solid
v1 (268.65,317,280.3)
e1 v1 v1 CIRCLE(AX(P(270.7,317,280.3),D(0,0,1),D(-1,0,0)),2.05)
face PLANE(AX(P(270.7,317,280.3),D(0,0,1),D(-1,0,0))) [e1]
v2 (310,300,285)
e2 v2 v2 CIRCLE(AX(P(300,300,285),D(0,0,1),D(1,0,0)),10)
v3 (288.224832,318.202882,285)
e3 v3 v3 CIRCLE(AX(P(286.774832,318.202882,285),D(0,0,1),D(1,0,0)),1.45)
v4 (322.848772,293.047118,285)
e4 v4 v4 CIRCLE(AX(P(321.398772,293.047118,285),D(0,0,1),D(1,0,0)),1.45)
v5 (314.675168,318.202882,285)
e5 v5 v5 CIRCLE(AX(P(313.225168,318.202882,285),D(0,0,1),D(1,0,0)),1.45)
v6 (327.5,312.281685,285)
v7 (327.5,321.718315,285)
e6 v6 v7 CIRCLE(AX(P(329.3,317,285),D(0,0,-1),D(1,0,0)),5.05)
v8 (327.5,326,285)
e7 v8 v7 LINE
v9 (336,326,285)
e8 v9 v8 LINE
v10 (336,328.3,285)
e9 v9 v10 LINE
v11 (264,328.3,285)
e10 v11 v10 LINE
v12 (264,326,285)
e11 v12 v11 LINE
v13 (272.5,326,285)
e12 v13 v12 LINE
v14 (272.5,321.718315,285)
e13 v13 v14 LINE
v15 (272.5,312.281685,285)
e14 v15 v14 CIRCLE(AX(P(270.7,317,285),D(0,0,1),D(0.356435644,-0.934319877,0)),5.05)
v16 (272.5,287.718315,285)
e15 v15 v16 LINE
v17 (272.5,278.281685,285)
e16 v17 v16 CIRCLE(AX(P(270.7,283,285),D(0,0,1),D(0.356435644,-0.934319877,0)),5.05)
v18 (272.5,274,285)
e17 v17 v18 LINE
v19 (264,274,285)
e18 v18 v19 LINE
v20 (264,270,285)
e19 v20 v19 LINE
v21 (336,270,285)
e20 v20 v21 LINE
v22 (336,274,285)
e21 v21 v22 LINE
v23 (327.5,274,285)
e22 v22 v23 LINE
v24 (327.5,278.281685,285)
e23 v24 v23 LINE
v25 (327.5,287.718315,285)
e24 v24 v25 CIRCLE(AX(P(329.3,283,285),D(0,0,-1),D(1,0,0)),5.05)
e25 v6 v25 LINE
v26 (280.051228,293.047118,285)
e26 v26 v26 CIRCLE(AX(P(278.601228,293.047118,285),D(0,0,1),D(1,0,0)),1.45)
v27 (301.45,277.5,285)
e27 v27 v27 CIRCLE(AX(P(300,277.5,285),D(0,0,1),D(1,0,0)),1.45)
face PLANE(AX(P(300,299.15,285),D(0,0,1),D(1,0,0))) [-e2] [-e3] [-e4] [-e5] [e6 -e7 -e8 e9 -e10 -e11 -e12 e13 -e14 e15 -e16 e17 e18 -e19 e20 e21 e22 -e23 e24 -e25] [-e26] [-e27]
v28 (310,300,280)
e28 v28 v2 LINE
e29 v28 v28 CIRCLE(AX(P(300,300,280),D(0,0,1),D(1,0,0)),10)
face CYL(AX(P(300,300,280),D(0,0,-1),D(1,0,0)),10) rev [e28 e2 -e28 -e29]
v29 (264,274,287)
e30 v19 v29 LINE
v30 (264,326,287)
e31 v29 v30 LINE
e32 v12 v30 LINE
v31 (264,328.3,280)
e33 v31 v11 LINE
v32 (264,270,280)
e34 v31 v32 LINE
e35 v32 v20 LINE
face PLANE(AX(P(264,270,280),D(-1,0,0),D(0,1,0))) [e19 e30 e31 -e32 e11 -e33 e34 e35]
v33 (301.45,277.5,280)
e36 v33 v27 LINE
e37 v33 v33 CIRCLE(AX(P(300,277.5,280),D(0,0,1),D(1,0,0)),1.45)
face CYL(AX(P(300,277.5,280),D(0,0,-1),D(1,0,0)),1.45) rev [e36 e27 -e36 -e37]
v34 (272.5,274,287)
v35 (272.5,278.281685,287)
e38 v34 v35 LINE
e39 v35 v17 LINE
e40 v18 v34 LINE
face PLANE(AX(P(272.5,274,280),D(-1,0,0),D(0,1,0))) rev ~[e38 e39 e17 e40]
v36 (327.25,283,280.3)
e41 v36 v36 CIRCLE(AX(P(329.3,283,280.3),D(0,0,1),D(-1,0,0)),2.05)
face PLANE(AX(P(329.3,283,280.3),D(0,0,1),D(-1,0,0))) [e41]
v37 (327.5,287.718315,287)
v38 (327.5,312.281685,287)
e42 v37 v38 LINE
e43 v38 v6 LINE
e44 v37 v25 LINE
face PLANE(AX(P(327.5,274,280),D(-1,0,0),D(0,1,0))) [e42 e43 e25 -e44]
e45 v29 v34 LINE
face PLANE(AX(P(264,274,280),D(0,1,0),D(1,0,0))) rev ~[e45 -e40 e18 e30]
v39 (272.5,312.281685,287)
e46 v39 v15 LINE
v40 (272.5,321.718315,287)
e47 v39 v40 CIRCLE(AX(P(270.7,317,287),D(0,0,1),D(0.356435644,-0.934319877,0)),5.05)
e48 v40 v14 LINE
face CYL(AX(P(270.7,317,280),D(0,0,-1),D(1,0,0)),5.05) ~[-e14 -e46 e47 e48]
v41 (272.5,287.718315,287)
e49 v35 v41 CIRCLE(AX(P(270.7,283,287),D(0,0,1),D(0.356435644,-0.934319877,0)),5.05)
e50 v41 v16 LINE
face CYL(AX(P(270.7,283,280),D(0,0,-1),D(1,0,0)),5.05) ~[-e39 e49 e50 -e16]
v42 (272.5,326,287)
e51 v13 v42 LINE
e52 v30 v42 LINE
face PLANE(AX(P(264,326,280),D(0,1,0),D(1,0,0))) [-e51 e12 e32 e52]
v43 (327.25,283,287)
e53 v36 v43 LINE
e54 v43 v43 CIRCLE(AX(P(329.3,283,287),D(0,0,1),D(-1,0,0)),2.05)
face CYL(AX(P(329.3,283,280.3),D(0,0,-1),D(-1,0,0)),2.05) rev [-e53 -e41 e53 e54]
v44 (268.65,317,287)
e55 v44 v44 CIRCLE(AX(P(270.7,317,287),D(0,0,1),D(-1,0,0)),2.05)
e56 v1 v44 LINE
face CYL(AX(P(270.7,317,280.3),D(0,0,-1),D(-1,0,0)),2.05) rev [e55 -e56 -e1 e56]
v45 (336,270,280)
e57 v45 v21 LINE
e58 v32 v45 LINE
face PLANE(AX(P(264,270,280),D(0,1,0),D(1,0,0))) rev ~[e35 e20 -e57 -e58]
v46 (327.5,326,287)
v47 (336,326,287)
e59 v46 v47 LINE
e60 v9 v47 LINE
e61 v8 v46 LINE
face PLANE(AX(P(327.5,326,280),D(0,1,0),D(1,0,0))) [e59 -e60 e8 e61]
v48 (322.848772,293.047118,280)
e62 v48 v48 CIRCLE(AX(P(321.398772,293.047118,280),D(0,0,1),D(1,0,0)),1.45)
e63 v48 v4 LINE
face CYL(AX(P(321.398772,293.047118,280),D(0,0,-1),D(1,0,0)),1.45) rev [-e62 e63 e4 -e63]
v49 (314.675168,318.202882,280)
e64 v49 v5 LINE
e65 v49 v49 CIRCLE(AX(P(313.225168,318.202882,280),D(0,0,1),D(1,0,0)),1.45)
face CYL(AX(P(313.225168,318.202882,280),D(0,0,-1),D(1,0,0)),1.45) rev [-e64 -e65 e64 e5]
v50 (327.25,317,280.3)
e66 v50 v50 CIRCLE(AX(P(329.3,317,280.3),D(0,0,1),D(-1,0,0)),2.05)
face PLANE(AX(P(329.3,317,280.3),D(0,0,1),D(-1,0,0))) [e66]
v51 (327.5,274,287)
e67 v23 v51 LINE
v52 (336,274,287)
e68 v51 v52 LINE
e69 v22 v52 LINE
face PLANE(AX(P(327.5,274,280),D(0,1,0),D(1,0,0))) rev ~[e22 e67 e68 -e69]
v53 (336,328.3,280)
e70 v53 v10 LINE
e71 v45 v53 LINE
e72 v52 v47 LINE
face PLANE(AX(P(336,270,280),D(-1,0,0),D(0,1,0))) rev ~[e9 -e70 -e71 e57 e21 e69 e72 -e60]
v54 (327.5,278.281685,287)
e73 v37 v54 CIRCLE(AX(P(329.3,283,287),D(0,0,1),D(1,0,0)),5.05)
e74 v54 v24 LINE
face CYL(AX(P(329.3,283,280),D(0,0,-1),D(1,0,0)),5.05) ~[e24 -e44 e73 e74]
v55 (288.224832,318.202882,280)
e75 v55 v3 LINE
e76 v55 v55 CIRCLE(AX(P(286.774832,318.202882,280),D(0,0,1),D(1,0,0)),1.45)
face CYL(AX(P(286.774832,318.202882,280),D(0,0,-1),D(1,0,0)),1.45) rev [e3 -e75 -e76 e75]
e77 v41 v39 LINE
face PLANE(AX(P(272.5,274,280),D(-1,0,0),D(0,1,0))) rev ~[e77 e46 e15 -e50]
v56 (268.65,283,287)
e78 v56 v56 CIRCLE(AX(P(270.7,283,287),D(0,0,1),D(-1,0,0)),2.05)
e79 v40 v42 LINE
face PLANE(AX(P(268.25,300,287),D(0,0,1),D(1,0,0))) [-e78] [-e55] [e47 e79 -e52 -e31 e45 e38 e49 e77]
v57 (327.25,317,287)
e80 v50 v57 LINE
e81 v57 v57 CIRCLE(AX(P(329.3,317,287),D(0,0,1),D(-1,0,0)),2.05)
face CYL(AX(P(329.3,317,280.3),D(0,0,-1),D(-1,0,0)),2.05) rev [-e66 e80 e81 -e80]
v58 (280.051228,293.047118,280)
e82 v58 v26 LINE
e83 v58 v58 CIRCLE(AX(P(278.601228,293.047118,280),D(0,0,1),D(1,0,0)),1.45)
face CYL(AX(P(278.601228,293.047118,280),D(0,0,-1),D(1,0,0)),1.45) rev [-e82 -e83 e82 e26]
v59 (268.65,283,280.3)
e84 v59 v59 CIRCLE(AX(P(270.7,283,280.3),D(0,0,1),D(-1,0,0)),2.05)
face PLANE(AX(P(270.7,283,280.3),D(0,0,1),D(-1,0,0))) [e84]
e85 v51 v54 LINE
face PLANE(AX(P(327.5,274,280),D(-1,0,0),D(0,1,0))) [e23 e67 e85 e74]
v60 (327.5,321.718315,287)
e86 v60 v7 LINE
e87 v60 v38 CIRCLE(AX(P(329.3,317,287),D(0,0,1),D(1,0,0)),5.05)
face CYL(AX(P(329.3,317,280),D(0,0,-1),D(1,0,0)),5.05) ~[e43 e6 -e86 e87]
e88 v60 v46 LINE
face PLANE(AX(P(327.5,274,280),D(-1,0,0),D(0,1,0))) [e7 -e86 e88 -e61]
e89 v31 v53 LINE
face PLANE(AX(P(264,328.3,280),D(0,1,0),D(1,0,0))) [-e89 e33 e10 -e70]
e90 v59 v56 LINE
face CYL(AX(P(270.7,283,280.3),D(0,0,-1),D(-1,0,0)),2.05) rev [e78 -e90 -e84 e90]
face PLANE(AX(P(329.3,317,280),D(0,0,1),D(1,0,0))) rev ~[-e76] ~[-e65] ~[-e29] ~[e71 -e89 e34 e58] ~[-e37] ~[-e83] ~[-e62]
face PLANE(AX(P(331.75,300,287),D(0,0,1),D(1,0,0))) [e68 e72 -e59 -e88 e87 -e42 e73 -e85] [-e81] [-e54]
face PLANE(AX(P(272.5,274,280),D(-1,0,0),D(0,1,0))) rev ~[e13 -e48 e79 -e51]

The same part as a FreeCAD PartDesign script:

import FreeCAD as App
import Part
import Sketcher
from FreeCAD import Vector


def add_polygon(sketch, points):
    """Adds a closed chain of lines whose ends are joined by coincident constraints."""
    first, n = sketch.GeometryCount, len(points)
    for a, b in zip(points, points[1:] + points[:1]):
        sketch.addGeometry(Part.LineSegment(App.Vector(*a, 0), App.Vector(*b, 0)), False)
    for i in range(n):
        sketch.addConstraint(Sketcher.Constraint("Coincident", first + i, 2, first + (i + 1) % n, 1))

doc = App.newDocument("Part")
body = doc.addObject("PartDesign::Body", "Body")

sketch1 = body.newObject("Sketcher::SketchObject", "Sketch")
sketch1.AttachmentSupport = (doc.getObject("XY_Plane"), [""])
sketch1.MapMode = "FlatFace"
sketch1.AttachmentOffset = App.Placement(Vector(0, 0, 280), App.Rotation())
add_polygon(sketch1, [(264, 328.3), (264, 270), (336, 270), (336, 328.3)])
sketch1.addGeometry(Part.Circle(Vector(300, 277.5, 0), Vector(0, 0, 1), 1.45), False)
sketch1.addGeometry(Part.Circle(Vector(278.601228, 293.047118, 0), Vector(0, 0, 1), 1.45), False)
sketch1.addGeometry(Part.Circle(Vector(321.398772, 293.047118, 0), Vector(0, 0, 1), 1.45), False)
sketch1.addGeometry(Part.Circle(Vector(300, 300, 0), Vector(0, 0, 1), 10), False)
sketch1.addGeometry(Part.Circle(Vector(286.774832, 318.202882, 0), Vector(0, 0, 1), 1.45), False)
sketch1.addGeometry(Part.Circle(Vector(313.225168, 318.202882, 0), Vector(0, 0, 1), 1.45), False)
sketch1.addConstraint(Sketcher.Constraint("Vertical", 0))
sketch1.addConstraint(Sketcher.Constraint("Horizontal", 1))
sketch1.addConstraint(Sketcher.Constraint("Vertical", 2))
sketch1.addConstraint(Sketcher.Constraint("Horizontal", 3))
sketch1.addConstraint(Sketcher.Constraint("Equal", 4, 5))
sketch1.addConstraint(Sketcher.Constraint("Equal", 5, 6))
sketch1.addConstraint(Sketcher.Constraint("Equal", 6, 8))
sketch1.addConstraint(Sketcher.Constraint("Equal", 8, 9))
sketch1.addConstraint(Sketcher.Constraint("Horizontal", 5, 3, 6, 3))
sketch1.addConstraint(Sketcher.Constraint("Horizontal", 8, 3, 9, 3))
sketch1.addConstraint(Sketcher.Constraint("Vertical", 4, 3, 7, 3))
sketch1.addConstraint(Sketcher.Constraint("Diameter", 7, 20.0))
sketch1.addConstraint(Sketcher.Constraint("Diameter", 4, 2.9))
sketch1.addConstraint(Sketcher.Constraint("DistanceX", 1, 1, 1, 2, 72.0))
sketch1.addConstraint(Sketcher.Constraint("DistanceY", 0, 2, 0, 1, 58.3))
sketch1.addConstraint(Sketcher.Constraint("DistanceX", -1, 1, 4, 3, 300.0))
sketch1.addConstraint(Sketcher.Constraint("DistanceY", -1, 1, 7, 3, 300.0))
sketch1.addConstraint(Sketcher.Constraint("DistanceX", -1, 1, 0, 2, 264.0))
sketch1.addConstraint(Sketcher.Constraint("DistanceY", -1, 1, 0, 2, 270.0))
sketch1.addConstraint(Sketcher.Constraint("DistanceY", -1, 1, 4, 3, 277.5))
sketch1.addConstraint(Sketcher.Constraint("DistanceX", -1, 1, 5, 3, 278.601228))
sketch1.addConstraint(Sketcher.Constraint("DistanceX", -1, 1, 6, 3, 321.398772))
sketch1.addConstraint(Sketcher.Constraint("DistanceX", -1, 1, 8, 3, 286.774832))
sketch1.addConstraint(Sketcher.Constraint("DistanceX", -1, 1, 9, 3, 313.225168))
sketch1.addConstraint(Sketcher.Constraint("DistanceY", -1, 1, 5, 3, 293.047118))
sketch1.addConstraint(Sketcher.Constraint("DistanceY", -1, 1, 8, 3, 318.202882))
pad1 = body.newObject("PartDesign::Pad", "Pad")
pad1.Profile = sketch1
pad1.Length = 5

sketch2 = body.newObject("Sketcher::SketchObject", "Sketch001")
sketch2.AttachmentSupport = (doc.getObject("XY_Plane"), [""])
sketch2.MapMode = "FlatFace"
sketch2.AttachmentOffset = App.Placement(Vector(0, 0, 280), App.Rotation())
add_polygon(sketch2, [(264, 326), (264, 274), (272.5, 274), (272.5, 326)])
sketch2.addConstraint(Sketcher.Constraint("Vertical", 0))
sketch2.addConstraint(Sketcher.Constraint("Horizontal", 1))
sketch2.addConstraint(Sketcher.Constraint("Vertical", 2))
sketch2.addConstraint(Sketcher.Constraint("Horizontal", 3))
sketch2.addConstraint(Sketcher.Constraint("DistanceY", 0, 2, 0, 1, 52.0))
sketch2.addConstraint(Sketcher.Constraint("DistanceX", 1, 1, 1, 2, 8.5))
sketch2.addConstraint(Sketcher.Constraint("DistanceX", -1, 1, 0, 2, 264.0))
sketch2.addConstraint(Sketcher.Constraint("DistanceY", -1, 1, 0, 2, 274.0))
pad2 = body.newObject("PartDesign::Pad", "Pad001")
pad2.Profile = sketch2
pad2.Length = 7

sketch3 = body.newObject("Sketcher::SketchObject", "Sketch002")
sketch3.AttachmentSupport = (doc.getObject("XY_Plane"), [""])
sketch3.MapMode = "FlatFace"
sketch3.AttachmentOffset = App.Placement(Vector(0, 0, 280), App.Rotation())
sketch3.addGeometry(Part.Circle(Vector(270.7, 283, 0), Vector(0, 0, 1), 5.05), False)
sketch3.addConstraint(Sketcher.Constraint("Diameter", 0, 10.1))
sketch3.addConstraint(Sketcher.Constraint("DistanceY", -1, 1, 0, 3, 283.0))
sketch3.addConstraint(Sketcher.Constraint("DistanceX", -1, 1, 0, 3, 270.7))
pad3 = body.newObject("PartDesign::Pad", "Pad002")
pad3.Profile = sketch3
pad3.Length = 7

sketch4 = body.newObject("Sketcher::SketchObject", "Sketch003")
sketch4.AttachmentSupport = (doc.getObject("XY_Plane"), [""])
sketch4.MapMode = "FlatFace"
sketch4.AttachmentOffset = App.Placement(Vector(0, 0, 280), App.Rotation())
sketch4.addGeometry(Part.Circle(Vector(270.7, 317, 0), Vector(0, 0, 1), 5.05), False)
sketch4.addConstraint(Sketcher.Constraint("Diameter", 0, 10.1))
sketch4.addConstraint(Sketcher.Constraint("DistanceY", -1, 1, 0, 3, 317.0))
sketch4.addConstraint(Sketcher.Constraint("DistanceX", -1, 1, 0, 3, 270.7))
pad4 = body.newObject("PartDesign::Pad", "Pad003")
pad4.Profile = sketch4
pad4.Length = 7

sketch5 = body.newObject("Sketcher::SketchObject", "Sketch004")
sketch5.AttachmentSupport = (doc.getObject("XY_Plane"), [""])
sketch5.MapMode = "FlatFace"
sketch5.AttachmentOffset = App.Placement(Vector(0, 0, 280.3), App.Rotation())
sketch5.addGeometry(Part.Circle(Vector(270.7, 283, 0), Vector(0, 0, 1), 2.05), False)
sketch5.addGeometry(Part.Circle(Vector(270.7, 317, 0), Vector(0, 0, 1), 2.05), False)
sketch5.addConstraint(Sketcher.Constraint("Equal", 0, 1))
sketch5.addConstraint(Sketcher.Constraint("Vertical", 0, 3, 1, 3))
sketch5.addConstraint(Sketcher.Constraint("Diameter", 0, 4.1))
sketch5.addConstraint(Sketcher.Constraint("DistanceY", -1, 1, 0, 3, 283.0))
sketch5.addConstraint(Sketcher.Constraint("DistanceY", -1, 1, 1, 3, 317.0))
sketch5.addConstraint(Sketcher.Constraint("DistanceX", -1, 1, 0, 3, 270.7))
pocket1 = body.newObject("PartDesign::Pocket", "Pocket")
pocket1.Profile = sketch5
pocket1.Length = 6.7
pocket1.Reversed = True

sketch6 = body.newObject("Sketcher::SketchObject", "Sketch005")
sketch6.AttachmentSupport = (doc.getObject("XY_Plane"), [""])
sketch6.MapMode = "FlatFace"
sketch6.AttachmentOffset = App.Placement(Vector(0, 0, 280), App.Rotation())
add_polygon(sketch6, [(327.5, 326), (327.5, 274), (336, 274), (336, 326)])
sketch6.addConstraint(Sketcher.Constraint("Vertical", 0))
sketch6.addConstraint(Sketcher.Constraint("Horizontal", 1))
sketch6.addConstraint(Sketcher.Constraint("Vertical", 2))
sketch6.addConstraint(Sketcher.Constraint("Horizontal", 3))
sketch6.addConstraint(Sketcher.Constraint("DistanceY", 0, 2, 0, 1, 52.0))
sketch6.addConstraint(Sketcher.Constraint("DistanceX", 1, 1, 1, 2, 8.5))
sketch6.addConstraint(Sketcher.Constraint("DistanceY", -1, 1, 0, 2, 274.0))
sketch6.addConstraint(Sketcher.Constraint("DistanceX", -1, 1, 1, 2, 336.0))
pad5 = body.newObject("PartDesign::Pad", "Pad004")
pad5.Profile = sketch6
pad5.Length = 7

sketch7 = body.newObject("Sketcher::SketchObject", "Sketch006")
sketch7.AttachmentSupport = (doc.getObject("XY_Plane"), [""])
sketch7.MapMode = "FlatFace"
sketch7.AttachmentOffset = App.Placement(Vector(0, 0, 280), App.Rotation())
sketch7.addGeometry(Part.Circle(Vector(329.3, 283, 0), Vector(0, 0, 1), 5.05), False)
sketch7.addConstraint(Sketcher.Constraint("Diameter", 0, 10.1))
sketch7.addConstraint(Sketcher.Constraint("DistanceY", -1, 1, 0, 3, 283.0))
sketch7.addConstraint(Sketcher.Constraint("DistanceX", -1, 1, 0, 3, 329.3))
pad6 = body.newObject("PartDesign::Pad", "Pad005")
pad6.Profile = sketch7
pad6.Length = 7

sketch8 = body.newObject("Sketcher::SketchObject", "Sketch007")
sketch8.AttachmentSupport = (doc.getObject("XY_Plane"), [""])
sketch8.MapMode = "FlatFace"
sketch8.AttachmentOffset = App.Placement(Vector(0, 0, 280), App.Rotation())
sketch8.addGeometry(Part.Circle(Vector(329.3, 317, 0), Vector(0, 0, 1), 5.05), False)
sketch8.addConstraint(Sketcher.Constraint("Diameter", 0, 10.1))
sketch8.addConstraint(Sketcher.Constraint("DistanceY", -1, 1, 0, 3, 317.0))
sketch8.addConstraint(Sketcher.Constraint("DistanceX", -1, 1, 0, 3, 329.3))
pad7 = body.newObject("PartDesign::Pad", "Pad006")
pad7.Profile = sketch8
pad7.Length = 7

sketch9 = body.newObject("Sketcher::SketchObject", "Sketch008")
sketch9.AttachmentSupport = (doc.getObject("XY_Plane"), [""])
sketch9.MapMode = "FlatFace"
sketch9.AttachmentOffset = App.Placement(Vector(0, 0, 280.3), App.Rotation())
sketch9.addGeometry(Part.Circle(Vector(329.3, 283, 0), Vector(0, 0, 1), 2.05), False)
sketch9.addGeometry(Part.Circle(Vector(329.3, 317, 0), Vector(0, 0, 1), 2.05), False)
sketch9.addConstraint(Sketcher.Constraint("Equal", 0, 1))
sketch9.addConstraint(Sketcher.Constraint("Vertical", 0, 3, 1, 3))
sketch9.addConstraint(Sketcher.Constraint("Diameter", 0, 4.1))
sketch9.addConstraint(Sketcher.Constraint("DistanceY", -1, 1, 0, 3, 283.0))
sketch9.addConstraint(Sketcher.Constraint("DistanceY", -1, 1, 1, 3, 317.0))
sketch9.addConstraint(Sketcher.Constraint("DistanceX", -1, 1, 0, 3, 329.3))
pocket2 = body.newObject("PartDesign::Pocket", "Pocket001")
pocket2.Profile = sketch9
pocket2.Length = 6.7
pocket2.Reversed = True

doc.recompute()
